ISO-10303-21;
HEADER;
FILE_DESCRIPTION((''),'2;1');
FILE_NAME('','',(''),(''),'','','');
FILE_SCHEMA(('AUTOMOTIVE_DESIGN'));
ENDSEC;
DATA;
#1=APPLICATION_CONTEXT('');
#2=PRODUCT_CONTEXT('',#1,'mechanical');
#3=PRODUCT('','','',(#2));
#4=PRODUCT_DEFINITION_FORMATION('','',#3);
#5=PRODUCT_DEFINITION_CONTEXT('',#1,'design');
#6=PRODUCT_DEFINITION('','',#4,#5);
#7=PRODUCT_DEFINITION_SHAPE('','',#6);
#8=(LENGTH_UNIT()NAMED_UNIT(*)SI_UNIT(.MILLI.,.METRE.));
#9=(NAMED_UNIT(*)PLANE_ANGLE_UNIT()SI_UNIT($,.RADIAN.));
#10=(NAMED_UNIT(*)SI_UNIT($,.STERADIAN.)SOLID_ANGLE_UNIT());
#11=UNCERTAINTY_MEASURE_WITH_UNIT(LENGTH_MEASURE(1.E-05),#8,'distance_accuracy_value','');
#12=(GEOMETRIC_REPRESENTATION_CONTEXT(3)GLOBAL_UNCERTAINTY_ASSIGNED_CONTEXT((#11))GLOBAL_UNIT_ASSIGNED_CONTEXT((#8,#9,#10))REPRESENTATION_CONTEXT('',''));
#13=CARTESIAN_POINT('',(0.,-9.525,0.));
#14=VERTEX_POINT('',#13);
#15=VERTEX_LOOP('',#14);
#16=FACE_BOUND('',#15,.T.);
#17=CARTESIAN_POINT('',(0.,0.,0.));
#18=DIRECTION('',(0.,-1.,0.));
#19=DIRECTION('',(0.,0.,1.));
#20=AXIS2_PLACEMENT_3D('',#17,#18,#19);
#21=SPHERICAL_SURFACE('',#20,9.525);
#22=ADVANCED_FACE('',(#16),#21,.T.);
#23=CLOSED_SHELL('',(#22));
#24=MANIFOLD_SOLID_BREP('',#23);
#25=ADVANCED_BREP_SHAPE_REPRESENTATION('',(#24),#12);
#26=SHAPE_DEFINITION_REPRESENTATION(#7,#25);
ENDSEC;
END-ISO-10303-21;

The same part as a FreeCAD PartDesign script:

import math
import FreeCAD as App
import Part
import Sketcher
Q = App.Units.Quantity

doc = App.newDocument("Part")
params = doc.addObject("Spreadsheet::Sheet", "Params")
for row, (alias, value) in enumerate([
    ("sketch1_radius", "0.375 in"),
    ("revolution_angle", "360 deg"),
], start=1):
    params.set(f"A{row}", alias)
    params.set(f"B{row}", "=" + value)
    params.setAlias(f"B{row}", alias)

body = doc.addObject("PartDesign::Body", "Body")

sketch1 = body.newObject("Sketcher::SketchObject", "Sketch")
sketch1.AttachmentSupport = (doc.getObject("YZ_Plane"), [""])
sketch1.MapMode = "FlatFace"
sketch1.addGeometry([
    Part.LineSegment(App.Vector(-10, 0, 0), App.Vector(10, 0, 0)),
    Part.ArcOfCircle(Part.Circle(App.Vector(0, 0, 0), App.Vector(0, 0, 1), 10), math.radians(0), math.radians(180)),
], False)
sketch1.addConstraint([
    Sketcher.Constraint("Coincident", 0, 1, 1, 2),
    Sketcher.Constraint("Coincident", 1, 1, 0, 2),
    Sketcher.Constraint("Horizontal", 0),
    Sketcher.Constraint("Coincident", 1, 3, -1, 1),
    Sketcher.Constraint("PointOnObject", 0, 1, -1),
    Sketcher.Constraint("Radius", 1, Q("0.375 in")),
])
sketch1.setExpression("Constraints[5]", "Params.sketch1_radius")
revolution = body.newObject("PartDesign::Revolution", "Revolution")
revolution.Profile = sketch1
revolution.ReferenceAxis = (sketch1, ["H_Axis"])
revolution.setExpression("Angle", "Params.revolution_angle")

doc.recompute()
